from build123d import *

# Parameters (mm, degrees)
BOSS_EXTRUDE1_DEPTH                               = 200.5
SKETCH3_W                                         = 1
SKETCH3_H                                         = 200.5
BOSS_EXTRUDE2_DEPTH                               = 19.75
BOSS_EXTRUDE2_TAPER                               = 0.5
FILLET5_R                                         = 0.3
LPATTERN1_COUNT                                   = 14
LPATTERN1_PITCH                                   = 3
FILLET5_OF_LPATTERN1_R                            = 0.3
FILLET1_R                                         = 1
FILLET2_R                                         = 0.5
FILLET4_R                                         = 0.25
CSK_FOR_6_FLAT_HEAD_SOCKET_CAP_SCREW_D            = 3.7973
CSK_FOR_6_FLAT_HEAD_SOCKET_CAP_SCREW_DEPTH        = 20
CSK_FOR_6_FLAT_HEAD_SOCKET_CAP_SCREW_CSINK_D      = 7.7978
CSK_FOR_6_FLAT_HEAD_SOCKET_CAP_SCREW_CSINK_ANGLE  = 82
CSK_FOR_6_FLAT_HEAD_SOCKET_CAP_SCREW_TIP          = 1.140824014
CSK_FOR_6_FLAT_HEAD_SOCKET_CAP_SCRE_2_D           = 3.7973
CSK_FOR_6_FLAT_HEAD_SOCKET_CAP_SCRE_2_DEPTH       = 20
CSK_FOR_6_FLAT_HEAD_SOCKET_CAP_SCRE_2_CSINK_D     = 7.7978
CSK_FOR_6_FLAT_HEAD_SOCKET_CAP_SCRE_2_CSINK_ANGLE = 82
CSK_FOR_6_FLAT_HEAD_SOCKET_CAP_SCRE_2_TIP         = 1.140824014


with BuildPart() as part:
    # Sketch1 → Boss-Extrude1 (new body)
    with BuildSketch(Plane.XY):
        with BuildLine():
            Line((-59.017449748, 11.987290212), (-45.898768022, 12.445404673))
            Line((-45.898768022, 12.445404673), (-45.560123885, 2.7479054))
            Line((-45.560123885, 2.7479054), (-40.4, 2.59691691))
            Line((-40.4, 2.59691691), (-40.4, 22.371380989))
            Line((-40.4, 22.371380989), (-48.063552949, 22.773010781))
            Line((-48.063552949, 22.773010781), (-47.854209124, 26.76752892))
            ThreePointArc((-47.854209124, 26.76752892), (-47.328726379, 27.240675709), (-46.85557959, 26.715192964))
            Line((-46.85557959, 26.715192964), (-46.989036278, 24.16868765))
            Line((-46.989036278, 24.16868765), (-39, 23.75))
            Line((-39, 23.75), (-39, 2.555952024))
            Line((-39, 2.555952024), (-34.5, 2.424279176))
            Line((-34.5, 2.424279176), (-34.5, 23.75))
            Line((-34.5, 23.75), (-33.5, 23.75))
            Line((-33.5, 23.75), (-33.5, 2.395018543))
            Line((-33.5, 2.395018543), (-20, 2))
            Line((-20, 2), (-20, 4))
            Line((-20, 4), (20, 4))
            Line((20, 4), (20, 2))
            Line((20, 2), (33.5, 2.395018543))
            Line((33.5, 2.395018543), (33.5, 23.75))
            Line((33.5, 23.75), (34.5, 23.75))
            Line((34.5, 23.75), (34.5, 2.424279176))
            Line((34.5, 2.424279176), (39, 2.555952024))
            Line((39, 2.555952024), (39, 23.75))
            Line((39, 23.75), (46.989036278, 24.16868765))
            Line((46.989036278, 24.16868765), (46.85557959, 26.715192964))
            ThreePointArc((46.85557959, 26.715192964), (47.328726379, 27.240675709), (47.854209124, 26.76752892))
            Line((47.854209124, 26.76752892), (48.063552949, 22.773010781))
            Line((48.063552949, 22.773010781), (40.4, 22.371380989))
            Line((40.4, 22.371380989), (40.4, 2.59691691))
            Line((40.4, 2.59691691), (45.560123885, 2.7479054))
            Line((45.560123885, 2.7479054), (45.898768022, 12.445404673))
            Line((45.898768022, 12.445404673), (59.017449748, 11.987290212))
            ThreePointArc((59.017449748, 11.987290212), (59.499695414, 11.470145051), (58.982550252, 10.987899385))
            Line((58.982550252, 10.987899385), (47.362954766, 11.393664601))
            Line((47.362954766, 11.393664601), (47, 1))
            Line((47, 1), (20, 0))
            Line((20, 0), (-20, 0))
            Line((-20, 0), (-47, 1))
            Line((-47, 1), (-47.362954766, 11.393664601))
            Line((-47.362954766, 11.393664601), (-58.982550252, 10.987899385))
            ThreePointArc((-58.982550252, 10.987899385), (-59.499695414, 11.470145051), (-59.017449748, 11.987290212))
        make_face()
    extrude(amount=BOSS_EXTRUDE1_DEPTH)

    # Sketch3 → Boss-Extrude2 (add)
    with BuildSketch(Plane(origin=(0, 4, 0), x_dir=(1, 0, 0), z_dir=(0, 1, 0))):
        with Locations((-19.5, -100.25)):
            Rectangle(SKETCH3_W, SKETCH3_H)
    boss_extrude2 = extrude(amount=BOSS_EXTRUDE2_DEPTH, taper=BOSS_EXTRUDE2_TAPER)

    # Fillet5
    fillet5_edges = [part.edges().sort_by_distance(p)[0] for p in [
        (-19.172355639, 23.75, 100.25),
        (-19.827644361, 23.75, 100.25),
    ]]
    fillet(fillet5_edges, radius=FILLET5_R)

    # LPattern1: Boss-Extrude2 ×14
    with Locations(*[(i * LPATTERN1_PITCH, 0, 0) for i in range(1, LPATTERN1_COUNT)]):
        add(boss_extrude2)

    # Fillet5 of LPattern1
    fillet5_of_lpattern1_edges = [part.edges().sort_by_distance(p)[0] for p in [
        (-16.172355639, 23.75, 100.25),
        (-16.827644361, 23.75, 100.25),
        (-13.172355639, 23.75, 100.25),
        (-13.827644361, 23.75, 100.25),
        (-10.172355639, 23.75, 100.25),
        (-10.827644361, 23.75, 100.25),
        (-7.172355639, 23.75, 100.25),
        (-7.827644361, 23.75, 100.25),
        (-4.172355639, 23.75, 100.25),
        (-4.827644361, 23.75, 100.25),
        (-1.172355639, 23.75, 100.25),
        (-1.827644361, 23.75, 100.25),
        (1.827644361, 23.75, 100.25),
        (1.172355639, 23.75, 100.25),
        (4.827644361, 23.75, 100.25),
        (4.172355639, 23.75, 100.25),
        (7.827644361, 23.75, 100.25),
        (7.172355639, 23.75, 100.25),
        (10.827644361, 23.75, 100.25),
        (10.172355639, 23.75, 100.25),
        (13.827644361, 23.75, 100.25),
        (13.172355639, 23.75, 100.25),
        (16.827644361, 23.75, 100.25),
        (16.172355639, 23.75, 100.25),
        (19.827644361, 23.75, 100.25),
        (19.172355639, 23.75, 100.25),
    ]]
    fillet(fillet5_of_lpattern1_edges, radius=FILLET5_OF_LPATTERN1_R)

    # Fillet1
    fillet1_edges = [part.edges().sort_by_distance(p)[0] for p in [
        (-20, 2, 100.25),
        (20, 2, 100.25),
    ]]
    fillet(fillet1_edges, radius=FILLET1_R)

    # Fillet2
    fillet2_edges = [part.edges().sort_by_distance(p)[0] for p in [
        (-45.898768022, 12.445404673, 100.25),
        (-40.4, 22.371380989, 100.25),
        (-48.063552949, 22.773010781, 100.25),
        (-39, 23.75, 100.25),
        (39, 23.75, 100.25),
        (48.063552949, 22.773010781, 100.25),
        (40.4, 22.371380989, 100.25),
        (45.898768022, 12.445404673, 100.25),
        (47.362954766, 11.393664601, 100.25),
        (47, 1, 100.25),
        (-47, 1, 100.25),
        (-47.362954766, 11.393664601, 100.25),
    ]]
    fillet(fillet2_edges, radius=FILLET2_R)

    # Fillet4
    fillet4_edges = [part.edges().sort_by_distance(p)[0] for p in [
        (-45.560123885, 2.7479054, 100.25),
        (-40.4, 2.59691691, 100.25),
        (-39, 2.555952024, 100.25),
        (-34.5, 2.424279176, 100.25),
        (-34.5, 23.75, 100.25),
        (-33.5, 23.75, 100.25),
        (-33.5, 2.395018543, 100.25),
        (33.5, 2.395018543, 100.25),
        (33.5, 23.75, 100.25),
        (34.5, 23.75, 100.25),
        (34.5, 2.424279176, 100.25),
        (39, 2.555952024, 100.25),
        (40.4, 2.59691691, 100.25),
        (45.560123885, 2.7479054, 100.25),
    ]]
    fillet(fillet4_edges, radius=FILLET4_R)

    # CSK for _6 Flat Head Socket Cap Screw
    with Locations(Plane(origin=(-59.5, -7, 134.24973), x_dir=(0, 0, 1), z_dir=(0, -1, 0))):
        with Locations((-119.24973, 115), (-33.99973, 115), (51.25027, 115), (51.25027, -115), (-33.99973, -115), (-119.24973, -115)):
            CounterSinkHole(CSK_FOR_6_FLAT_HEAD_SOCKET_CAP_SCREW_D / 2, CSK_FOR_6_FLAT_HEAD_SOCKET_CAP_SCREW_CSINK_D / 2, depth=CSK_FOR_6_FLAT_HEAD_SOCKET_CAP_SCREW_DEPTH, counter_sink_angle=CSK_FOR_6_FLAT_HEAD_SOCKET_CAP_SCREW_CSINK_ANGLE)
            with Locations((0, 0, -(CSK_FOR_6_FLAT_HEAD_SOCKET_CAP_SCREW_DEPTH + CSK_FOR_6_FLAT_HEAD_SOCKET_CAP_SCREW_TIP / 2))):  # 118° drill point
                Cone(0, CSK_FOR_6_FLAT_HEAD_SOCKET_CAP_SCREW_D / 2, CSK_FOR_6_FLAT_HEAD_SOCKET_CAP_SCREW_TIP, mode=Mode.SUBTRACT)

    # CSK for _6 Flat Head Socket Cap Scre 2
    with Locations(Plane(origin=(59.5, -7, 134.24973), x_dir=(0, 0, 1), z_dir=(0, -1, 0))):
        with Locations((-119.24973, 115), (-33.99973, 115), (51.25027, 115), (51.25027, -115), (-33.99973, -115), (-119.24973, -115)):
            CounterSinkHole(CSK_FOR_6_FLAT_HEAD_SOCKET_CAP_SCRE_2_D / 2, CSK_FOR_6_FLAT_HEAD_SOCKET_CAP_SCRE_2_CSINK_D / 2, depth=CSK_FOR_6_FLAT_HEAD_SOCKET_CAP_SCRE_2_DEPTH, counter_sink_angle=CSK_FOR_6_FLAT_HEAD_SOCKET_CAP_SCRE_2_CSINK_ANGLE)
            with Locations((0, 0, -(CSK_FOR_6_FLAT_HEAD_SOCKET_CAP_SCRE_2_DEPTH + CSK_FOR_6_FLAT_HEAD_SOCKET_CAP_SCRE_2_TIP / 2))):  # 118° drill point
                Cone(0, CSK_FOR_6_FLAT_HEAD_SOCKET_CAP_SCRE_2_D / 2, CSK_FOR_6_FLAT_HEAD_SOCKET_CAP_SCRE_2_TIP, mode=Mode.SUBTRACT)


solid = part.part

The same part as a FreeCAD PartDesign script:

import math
import FreeCAD as App
import Part
import Sketcher
Q = App.Units.Quantity


def edges_at(feature, points):
    """Names of the edges that pass closest to the given points."""
    edges = feature.Shape.Edges
    near = lambda p: min(range(len(edges)), key=lambda i: edges[i].distToShape(Part.Vertex(*p))[0])
    return sorted({f"Edge{near(p) + 1}" for p in points})


def add_polygon(sketch, points):
    """Adds a closed chain of lines whose ends are joined by coincident constraints."""
    first, n = sketch.GeometryCount, len(points)
    for a, b in zip(points, points[1:] + points[:1]):
        sketch.addGeometry(Part.LineSegment(App.Vector(*a, 0), App.Vector(*b, 0)), False)
    for i in range(n):
        sketch.addConstraint(Sketcher.Constraint("Coincident", first + i, 2, first + (i + 1) % n, 1))

doc = App.newDocument("Part")
body = doc.addObject("PartDesign::Body", "Body")

sketch1 = body.newObject("Sketcher::SketchObject", "Sketch")
sketch1.AttachmentSupport = (doc.getObject("XY_Plane"), [""])
sketch1.MapMode = "FlatFace"
sketch1.addGeometry([
    Part.LineSegment(App.Vector(-45.9, 12.4, 0), App.Vector(-59, 12, 0)),
    Part.ArcOfCircle(Part.Circle(App.Vector(-59, 11.5, 0), App.Vector(0, 0, 1), 0.5), math.radians(92), math.radians(272)),
    Part.LineSegment(App.Vector(-59, 11, 0), App.Vector(-47.4, 11.4, 0)),
    Part.LineSegment(App.Vector(-47.4, 11.4, 0), App.Vector(-47, 1, 0)),
    Part.LineSegment(App.Vector(-47, 1, 0), App.Vector(-20, 0, 0)),
    Part.LineSegment(App.Vector(-20, 0, 0), App.Vector(20, 0, 0)),
    Part.LineSegment(App.Vector(20, 0, 0), App.Vector(47, 1, 0)),
    Part.LineSegment(App.Vector(47, 1, 0), App.Vector(47.4, 11.4, 0)),
    Part.LineSegment(App.Vector(47.4, 11.4, 0), App.Vector(59, 11, 0)),
    Part.ArcOfCircle(Part.Circle(App.Vector(59, 11.5, 0), App.Vector(0, 0, 1), 0.5), math.radians(-92), math.radians(88)),
    Part.LineSegment(App.Vector(59, 12, 0), App.Vector(45.9, 12.4, 0)),
    Part.LineSegment(App.Vector(45.9, 12.4, 0), App.Vector(45.6, 2.7, 0)),
    Part.LineSegment(App.Vector(45.6, 2.7, 0), App.Vector(40.4, 2.6, 0)),
    Part.LineSegment(App.Vector(40.4, 2.6, 0), App.Vector(40.4, 22.4, 0)),
    Part.LineSegment(App.Vector(40.4, 22.4, 0), App.Vector(48.1, 22.8, 0)),
    Part.LineSegment(App.Vector(48.1, 22.8, 0), App.Vector(47.9, 26.8, 0)),
    Part.ArcOfCircle(Part.Circle(App.Vector(47.4, 26.7, 0), App.Vector(0, 0, 1), 0.5), math.radians(3), math.radians(183)),
    Part.LineSegment(App.Vector(46.9, 26.7, 0), App.Vector(47, 24.2, 0)),
    Part.LineSegment(App.Vector(47, 24.2, 0), App.Vector(39, 23.8, 0)),
    Part.LineSegment(App.Vector(39, 23.8, 0), App.Vector(39, 2.6, 0)),
    Part.LineSegment(App.Vector(39, 2.6, 0), App.Vector(34.5, 2.4, 0)),
    Part.LineSegment(App.Vector(34.5, 2.4, 0), App.Vector(34.5, 23.8, 0)),
    Part.LineSegment(App.Vector(34.5, 23.8, 0), App.Vector(33.5, 23.8, 0)),
    Part.LineSegment(App.Vector(33.5, 23.8, 0), App.Vector(33.5, 2.4, 0)),
    Part.LineSegment(App.Vector(33.5, 2.4, 0), App.Vector(20, 2, 0)),
    Part.LineSegment(App.Vector(20, 2, 0), App.Vector(20, 4, 0)),
    Part.LineSegment(App.Vector(20, 4, 0), App.Vector(-20, 4, 0)),
    Part.LineSegment(App.Vector(-20, 4, 0), App.Vector(-20, 2, 0)),
    Part.LineSegment(App.Vector(-20, 2, 0), App.Vector(-33.5, 2.4, 0)),
    Part.LineSegment(App.Vector(-33.5, 2.4, 0), App.Vector(-33.5, 23.8, 0)),
    Part.LineSegment(App.Vector(-33.5, 23.8, 0), App.Vector(-34.5, 23.8, 0)),
    Part.LineSegment(App.Vector(-34.5, 23.8, 0), App.Vector(-34.5, 2.4, 0)),
    Part.LineSegment(App.Vector(-34.5, 2.4, 0), App.Vector(-39, 2.6, 0)),
    Part.LineSegment(App.Vector(-39, 2.6, 0), App.Vector(-39, 23.8, 0)),
    Part.LineSegment(App.Vector(-39, 23.8, 0), App.Vector(-47, 24.2, 0)),
    Part.LineSegment(App.Vector(-47, 24.2, 0), App.Vector(-46.9, 26.7, 0)),
    Part.ArcOfCircle(Part.Circle(App.Vector(-47.4, 26.7, 0), App.Vector(0, 0, 1), 0.5), math.radians(-3), math.radians(177)),
    Part.LineSegment(App.Vector(-47.9, 26.8, 0), App.Vector(-48.1, 22.8, 0)),
    Part.LineSegment(App.Vector(-48.1, 22.8, 0), App.Vector(-40.4, 22.4, 0)),
    Part.LineSegment(App.Vector(-40.4, 22.4, 0), App.Vector(-40.4, 2.6, 0)),
    Part.LineSegment(App.Vector(-40.4, 2.6, 0), App.Vector(-45.6, 2.7, 0)),
    Part.LineSegment(App.Vector(-45.6, 2.7, 0), App.Vector(-45.9, 12.4, 0)),
], False)
sketch1.addConstraint([
    Sketcher.Constraint("Tangent", 0, 2, 1, 1),
    Sketcher.Constraint("Tangent", 1, 2, 2, 1),
    Sketcher.Constraint("Coincident", 2, 2, 3, 1),
    Sketcher.Constraint("Coincident", 3, 2, 4, 1),
    Sketcher.Constraint("Coincident", 4, 2, 5, 1),
    Sketcher.Constraint("Coincident", 5, 2, 6, 1),
    Sketcher.Constraint("Coincident", 6, 2, 7, 1),
    Sketcher.Constraint("Coincident", 7, 2, 8, 1),
    Sketcher.Constraint("Tangent", 8, 2, 9, 1),
    Sketcher.Constraint("Tangent", 9, 2, 10, 1),
    Sketcher.Constraint("Coincident", 10, 2, 11, 1),
    Sketcher.Constraint("Coincident", 11, 2, 12, 1),
    Sketcher.Constraint("Coincident", 12, 2, 13, 1),
    Sketcher.Constraint("Coincident", 13, 2, 14, 1),
    Sketcher.Constraint("Coincident", 14, 2, 15, 1),
    Sketcher.Constraint("Tangent", 15, 2, 16, 1),
    Sketcher.Constraint("Tangent", 16, 2, 17, 1),
    Sketcher.Constraint("Coincident", 17, 2, 18, 1),
    Sketcher.Constraint("Coincident", 18, 2, 19, 1),
    Sketcher.Constraint("Coincident", 19, 2, 20, 1),
    Sketcher.Constraint("Coincident", 20, 2, 21, 1),
    Sketcher.Constraint("Coincident", 21, 2, 22, 1),
    Sketcher.Constraint("Coincident", 22, 2, 23, 1),
    Sketcher.Constraint("Coincident", 23, 2, 24, 1),
    Sketcher.Constraint("Coincident", 24, 2, 25, 1),
    Sketcher.Constraint("Coincident", 25, 2, 26, 1),
    Sketcher.Constraint("Coincident", 26, 2, 27, 1),
    Sketcher.Constraint("Coincident", 27, 2, 28, 1),
    Sketcher.Constraint("Coincident", 28, 2, 29, 1),
    Sketcher.Constraint("Coincident", 29, 2, 30, 1),
    Sketcher.Constraint("Coincident", 30, 2, 31, 1),
    Sketcher.Constraint("Coincident", 31, 2, 32, 1),
    Sketcher.Constraint("Coincident", 32, 2, 33, 1),
    Sketcher.Constraint("Coincident", 33, 2, 34, 1),
    Sketcher.Constraint("Coincident", 34, 2, 35, 1),
    Sketcher.Constraint("Tangent", 35, 2, 36, 1),
    Sketcher.Constraint("Tangent", 36, 2, 37, 1),
    Sketcher.Constraint("Coincident", 37, 2, 38, 1),
    Sketcher.Constraint("Coincident", 38, 2, 39, 1),
    Sketcher.Constraint("Coincident", 39, 2, 40, 1),
    Sketcher.Constraint("Coincident", 40, 2, 41, 1),
    Sketcher.Constraint("Coincident", 41, 2, 0, 1),
    Sketcher.Constraint("Horizontal", 5),
    Sketcher.Constraint("Vertical", 13),
    Sketcher.Constraint("Vertical", 19),
    Sketcher.Constraint("Vertical", 21),
    Sketcher.Constraint("Horizontal", 22),
    Sketcher.Constraint("Vertical", 23),
    Sketcher.Constraint("Vertical", 25),
    Sketcher.Constraint("Horizontal", 26),
    Sketcher.Constraint("Vertical", 27),
    Sketcher.Constraint("Vertical", 29),
    Sketcher.Constraint("Horizontal", 30),
    Sketcher.Constraint("Vertical", 31),
    Sketcher.Constraint("Vertical", 33),
    Sketcher.Constraint("Vertical", 39),
    Sketcher.Constraint("Equal", 1, 9),
    Sketcher.Constraint("Equal", 9, 16),
    Sketcher.Constraint("Equal", 16, 36),
    Sketcher.Constraint("Symmetric", 4, 2, 5, 2, -1, 1),
    Sketcher.Constraint("Symmetric", 1, 3, 9, 3, -2),
    Sketcher.Constraint("Symmetric", 16, 3, 36, 3, -2),
    Sketcher.Constraint("Symmetric", 3, 2, 6, 2, -2),
    Sketcher.Constraint("Symmetric", 2, 2, 7, 2, -2),
    Sketcher.Constraint("Symmetric", 24, 2, 27, 2, -2),
    Sketcher.Constraint("Symmetric", 23, 2, 28, 2, -2),
    Sketcher.Constraint("Symmetric", 21, 2, 30, 2, -2),
    Sketcher.Constraint("Symmetric", 19, 2, 32, 2, -2),
    Sketcher.Constraint("Symmetric", 17, 2, 34, 2, -2),
    Sketcher.Constraint("Symmetric", 14, 2, 37, 2, -2),
    Sketcher.Constraint("Symmetric", 13, 2, 38, 2, -2),
    Sketcher.Constraint("Symmetric", 11, 2, 40, 2, -2),
    Sketcher.Constraint("Symmetric", 10, 2, 41, 2, -2),
    Sketcher.Constraint("Parallel", 0, 2),
    Sketcher.Constraint("Perpendicular", 2, 3),
    Sketcher.Constraint("Perpendicular", 10, 11),
    Sketcher.Constraint("Perpendicular", 14, 15),
    Sketcher.Constraint("Parallel", 15, 17),
    Sketcher.Constraint("Perpendicular", 17, 18),
    Sketcher.Constraint("Parallel", 12, 20),
    Sketcher.Constraint("Parallel", 20, 24),
    Sketcher.Constraint("Parallel", 28, 32),
    Sketcher.Constraint("Perpendicular", 34, 35),
    Sketcher.Constraint("Parallel", 32, 40),
    Sketcher.Constraint("Horizontal", 18, 2, 21, 2),
    Sketcher.Constraint("Vertical", 5, 2, 24, 2),
    Sketcher.Constraint("Radius", 1, Q("0.5 mm")),
    Sketcher.Constraint("DistanceX", 5, 1, 5, 2, Q("40 mm")),
    Sketcher.Constraint("DistanceX", 22, 2, 22, 1, Q("1 mm")),
    Sketcher.Constraint("DistanceY", 25, 1, 25, 2, Q("2 mm")),
    Sketcher.Constraint("Angle", 0, Q("-178 deg")),
    Sketcher.Constraint("Angle", 14, Q("3 deg")),
    Sketcher.Constraint("Distance", 15, Q("4 mm")),
    Sketcher.Constraint("Distance", 18, Q("8 mm")),
    Sketcher.Constraint("DistanceX", 1, 3, -1, 1, Q("59 mm")),
    Sketcher.Constraint("DistanceX", 3, 2, -1, 1, Q("47 mm")),
    Sketcher.Constraint("DistanceY", -1, 1, 3, 2, Q("1 mm")),
    Sketcher.Constraint("DistanceX", -1, 1, 18, 2, Q("39 mm")),
    Sketcher.Constraint("DistanceY", -1, 1, 24, 2, Q("2 mm")),
    Sketcher.Constraint("Distance", 3, Q("10.4 mm")),
    Sketcher.Constraint("DistanceX", -1, 1, 12, 2, Q("40.4 mm")),
    Sketcher.Constraint("DistanceX", -1, 1, 20, 2, Q("34.5 mm")),
    Sketcher.Constraint("Distance", 17, Q("2.55 mm")),
    Sketcher.Constraint("DistanceY", -1, 1, 18, 2, Q("23.75 mm")),
    Sketcher.Constraint("DistanceY", 21, 1, 21, 2, Q("21.325721 mm")),
    Sketcher.Constraint("DistanceY", 23, 2, 23, 1, Q("21.354981 mm")),
    Sketcher.Constraint("DistanceY", 11, 2, 10, 2, Q("9.697499 mm")),
    Sketcher.Constraint("DistanceY", 23, 2, 12, 2, Q("0.201898 mm")),
])
pad1 = body.newObject("PartDesign::Pad", "Pad")
pad1.Profile = sketch1
pad1.Length = 200.5

sketch2 = body.newObject("Sketcher::SketchObject", "Sketch001")
sketch2.AttachmentSupport = (doc.getObject("XZ_Plane"), [""])
sketch2.MapMode = "FlatFace"
sketch2.AttachmentOffset = App.Placement(App.Vector(0, 0, -4), App.Rotation())
add_polygon(sketch2, [(-20, 0), (-20, 200.5), (-19, 200.5), (-19, 0)])
sketch2.addConstraint([
    Sketcher.Constraint("Vertical", 0),
    Sketcher.Constraint("Horizontal", 1),
    Sketcher.Constraint("Vertical", 2),
    Sketcher.Constraint("Horizontal", 3),
    Sketcher.Constraint("PointOnObject", 2, 2, -1),
    Sketcher.Constraint("DistanceX", 1, 1, 1, 2, Q("1 mm")),
    Sketcher.Constraint("DistanceY", 0, 1, 0, 2, Q("200.5 mm")),
    Sketcher.Constraint("DistanceX", 0, 2, -1, 1, Q("20 mm")),
])
pad2 = body.newObject("PartDesign::Pad", "Pad001")
pad2.Profile = sketch2
pad2.Length = 19.75
pad2.Reversed = True
pad2.TaperAngle = -0.5
doc.recompute()

fillet = body.newObject("PartDesign::Fillet", "Fillet")
fillet.Base = (pad2, edges_at(pad2, [(-19.172, 23.75, 100.25), (-19.828, 23.75, 100.25)]))
fillet.Radius = 0.3
doc.recompute()

linearpattern = body.newObject("PartDesign::LinearPattern", "LinearPattern")
linearpattern.Originals = [pad2]
linearpattern.Direction = (doc.getObject("X_Axis"), [""])
linearpattern.Mode = "offset"
linearpattern.Offset = 3
linearpattern.Occurrences = 14
body.Tip = linearpattern
doc.recompute()

fillet2 = body.newObject("PartDesign::Fillet", "Fillet001")
fillet2.Base = (linearpattern, edges_at(linearpattern, [
    (-16.172, 23.75, 100.25),
    (-16.828, 23.75, 100.25),
    (-13.172, 23.75, 100.25),
    (-13.828, 23.75, 100.25),
    (-10.172, 23.75, 100.25),
    (-10.828, 23.75, 100.25),
    (-7.172, 23.75, 100.25),
    (-7.828, 23.75, 100.25),
    (-4.172, 23.75, 100.25),
    (-4.828, 23.75, 100.25),
    (-1.172, 23.75, 100.25),
    (-1.828, 23.75, 100.25),
    (1.828, 23.75, 100.25),
    (1.172, 23.75, 100.25),
    (4.828, 23.75, 100.25),
    (4.172, 23.75, 100.25),
    (7.828, 23.75, 100.25),
    (7.172, 23.75, 100.25),
    (10.828, 23.75, 100.25),
    (10.172, 23.75, 100.25),
    (13.828, 23.75, 100.25),
    (13.172, 23.75, 100.25),
    (16.828, 23.75, 100.25),
    (16.172, 23.75, 100.25),
    (19.828, 23.75, 100.25),
    (19.172, 23.75, 100.25),
]))
fillet2.Radius = 0.3
doc.recompute()

fillet3 = body.newObject("PartDesign::Fillet", "Fillet002")
fillet3.Base = (fillet2, edges_at(fillet2, [(-20, 2, 100.25), (20, 2, 100.25)]))
fillet3.Radius = 1
doc.recompute()

fillet4 = body.newObject("PartDesign::Fillet", "Fillet003")
fillet4.Base = (fillet3, edges_at(fillet3, [
    (-45.899, 12.445, 100.25),
    (-40.4, 22.371, 100.25),
    (-48.064, 22.773, 100.25),
    (-39, 23.75, 100.25),
    (39, 23.75, 100.25),
    (48.064, 22.773, 100.25),
    (40.4, 22.371, 100.25),
    (45.899, 12.445, 100.25),
    (47.363, 11.394, 100.25),
    (47, 1, 100.25),
    (-47, 1, 100.25),
    (-47.363, 11.394, 100.25),
]))
fillet4.Radius = 0.5
doc.recompute()

fillet5 = body.newObject("PartDesign::Fillet", "Fillet004")
fillet5.Base = (fillet4, edges_at(fillet4, [
    (-45.56, 2.748, 100.25),
    (-40.4, 2.597, 100.25),
    (-39, 2.556, 100.25),
    (-34.5, 2.424, 100.25),
    (-34.5, 23.75, 100.25),
    (-33.5, 23.75, 100.25),
    (-33.5, 2.395, 100.25),
    (33.5, 2.395, 100.25),
    (33.5, 23.75, 100.25),
    (34.5, 23.75, 100.25),
    (34.5, 2.424, 100.25),
    (39, 2.556, 100.25),
    (40.4, 2.597, 100.25),
    (45.56, 2.748, 100.25),
]))
fillet5.Radius = 0.25

sketch3 = body.newObject("Sketcher::SketchObject", "Sketch002")
sketch3.AttachmentSupport = (doc.getObject("XZ_Plane"), [""])
sketch3.MapMode = "FlatFace"
sketch3.AttachmentOffset = App.Placement(App.Vector(0, 0, 7), App.Rotation())
sketch3.addGeometry([
    Part.Circle(App.Vector(-174.5, 15, 0), App.Vector(0, 0, 1), 1.9),
    Part.Circle(App.Vector(-174.5, 100.2, 0), App.Vector(0, 0, 1), 1.9),
    Part.Circle(App.Vector(-174.5, 185.5, 0), App.Vector(0, 0, 1), 1.9),
    Part.Circle(App.Vector(55.5, 185.5, 0), App.Vector(0, 0, 1), 1.9),
    Part.Circle(App.Vector(55.5, 100.2, 0), App.Vector(0, 0, 1), 1.9),
    Part.Circle(App.Vector(55.5, 15, 0), App.Vector(0, 0, 1), 1.9),
], False)
sketch3.addConstraint([
    Sketcher.Constraint("Equal", 0, 1),
    Sketcher.Constraint("Equal", 1, 2),
    Sketcher.Constraint("Equal", 2, 3),
    Sketcher.Constraint("Equal", 3, 4),
    Sketcher.Constraint("Equal", 4, 5),
    Sketcher.Constraint("Horizontal", 2, 3, 3, 3),
    Sketcher.Constraint("Horizontal", 1, 3, 4, 3),
    Sketcher.Constraint("Horizontal", 0, 3, 5, 3),
    Sketcher.Constraint("Vertical", 0, 3, 1, 3),
    Sketcher.Constraint("Vertical", 1, 3, 2, 3),
    Sketcher.Constraint("Vertical", 3, 3, 4, 3),
    Sketcher.Constraint("Vertical", 4, 3, 5, 3),
    Sketcher.Constraint("DistanceY", -1, 1, 0, 3, Q("15 mm")),
    Sketcher.Constraint("DistanceX", 2, 3, 3, 3, Q("230 mm")),
    Sketcher.Constraint("Diameter", 0, Q("3.7973 mm")),
    Sketcher.Constraint("DistanceX", 0, 3, -1, 1, Q("174.5 mm")),
    Sketcher.Constraint("DistanceY", -1, 1, 2, 3, Q("185.5 mm")),
    Sketcher.Constraint("DistanceY", -1, 1, 1, 3, Q("100.25 mm")),
])
doc.recompute()
hole = body.newObject("PartDesign::Hole", "Hole")
hole.Profile = sketch3
hole.ThreadType = "None"
hole.Diameter = 3.7973
hole.DepthType = "Dimension"
hole.Depth = 20
hole.DrillPoint = "Angled"
hole.DrillPointAngle = 118
hole.HoleCutType = "Countersink"
hole.HoleCutDiameter = 7.7978
hole.HoleCutCountersinkAngle = 82

sketch4 = body.newObject("Sketcher::SketchObject", "Sketch003")
sketch4.AttachmentSupport = (doc.getObject("XZ_Plane"), [""])
sketch4.MapMode = "FlatFace"
sketch4.AttachmentOffset = App.Placement(App.Vector(0, 0, 7), App.Rotation())
sketch4.addGeometry([
    Part.Circle(App.Vector(-55.5, 15, 0), App.Vector(0, 0, 1), 1.9),
    Part.Circle(App.Vector(-55.5, 100.2, 0), App.Vector(0, 0, 1), 1.9),
    Part.Circle(App.Vector(-55.5, 185.5, 0), App.Vector(0, 0, 1), 1.9),
    Part.Circle(App.Vector(174.5, 185.5, 0), App.Vector(0, 0, 1), 1.9),
    Part.Circle(App.Vector(174.5, 100.2, 0), App.Vector(0, 0, 1), 1.9),
    Part.Circle(App.Vector(174.5, 15, 0), App.Vector(0, 0, 1), 1.9),
], False)
sketch4.addConstraint([
    Sketcher.Constraint("Equal", 0, 1),
    Sketcher.Constraint("Equal", 1, 2),
    Sketcher.Constraint("Equal", 2, 3),
    Sketcher.Constraint("Equal", 3, 4),
    Sketcher.Constraint("Equal", 4, 5),
    Sketcher.Constraint("Horizontal", 2, 3, 3, 3),
    Sketcher.Constraint("Horizontal", 1, 3, 4, 3),
    Sketcher.Constraint("Horizontal", 0, 3, 5, 3),
    Sketcher.Constraint("Vertical", 0, 3, 1, 3),
    Sketcher.Constraint("Vertical", 1, 3, 2, 3),
    Sketcher.Constraint("Vertical", 3, 3, 4, 3),
    Sketcher.Constraint("Vertical", 4, 3, 5, 3),
    Sketcher.Constraint("DistanceY", -1, 1, 0, 3, Q("15 mm")),
    Sketcher.Constraint("DistanceX", 2, 3, 3, 3, Q("230 mm")),
    Sketcher.Constraint("Diameter", 0, Q("3.7973 mm")),
    Sketcher.Constraint("DistanceX", 0, 3, -1, 1, Q("55.5 mm")),
    Sketcher.Constraint("DistanceY", -1, 1, 2, 3, Q("185.5 mm")),
    Sketcher.Constraint("DistanceY", -1, 1, 1, 3, Q("100.25 mm")),
])
doc.recompute()
hole2 = body.newObject("PartDesign::Hole", "Hole001")
hole2.Profile = sketch4
hole2.ThreadType = "None"
hole2.Diameter = 3.7973
hole2.DepthType = "Dimension"
hole2.Depth = 20
hole2.DrillPoint = "Angled"
hole2.DrillPointAngle = 118
hole2.HoleCutType = "Countersink"
hole2.HoleCutDiameter = 7.7978
hole2.HoleCutCountersinkAngle = 82

doc.recompute()
